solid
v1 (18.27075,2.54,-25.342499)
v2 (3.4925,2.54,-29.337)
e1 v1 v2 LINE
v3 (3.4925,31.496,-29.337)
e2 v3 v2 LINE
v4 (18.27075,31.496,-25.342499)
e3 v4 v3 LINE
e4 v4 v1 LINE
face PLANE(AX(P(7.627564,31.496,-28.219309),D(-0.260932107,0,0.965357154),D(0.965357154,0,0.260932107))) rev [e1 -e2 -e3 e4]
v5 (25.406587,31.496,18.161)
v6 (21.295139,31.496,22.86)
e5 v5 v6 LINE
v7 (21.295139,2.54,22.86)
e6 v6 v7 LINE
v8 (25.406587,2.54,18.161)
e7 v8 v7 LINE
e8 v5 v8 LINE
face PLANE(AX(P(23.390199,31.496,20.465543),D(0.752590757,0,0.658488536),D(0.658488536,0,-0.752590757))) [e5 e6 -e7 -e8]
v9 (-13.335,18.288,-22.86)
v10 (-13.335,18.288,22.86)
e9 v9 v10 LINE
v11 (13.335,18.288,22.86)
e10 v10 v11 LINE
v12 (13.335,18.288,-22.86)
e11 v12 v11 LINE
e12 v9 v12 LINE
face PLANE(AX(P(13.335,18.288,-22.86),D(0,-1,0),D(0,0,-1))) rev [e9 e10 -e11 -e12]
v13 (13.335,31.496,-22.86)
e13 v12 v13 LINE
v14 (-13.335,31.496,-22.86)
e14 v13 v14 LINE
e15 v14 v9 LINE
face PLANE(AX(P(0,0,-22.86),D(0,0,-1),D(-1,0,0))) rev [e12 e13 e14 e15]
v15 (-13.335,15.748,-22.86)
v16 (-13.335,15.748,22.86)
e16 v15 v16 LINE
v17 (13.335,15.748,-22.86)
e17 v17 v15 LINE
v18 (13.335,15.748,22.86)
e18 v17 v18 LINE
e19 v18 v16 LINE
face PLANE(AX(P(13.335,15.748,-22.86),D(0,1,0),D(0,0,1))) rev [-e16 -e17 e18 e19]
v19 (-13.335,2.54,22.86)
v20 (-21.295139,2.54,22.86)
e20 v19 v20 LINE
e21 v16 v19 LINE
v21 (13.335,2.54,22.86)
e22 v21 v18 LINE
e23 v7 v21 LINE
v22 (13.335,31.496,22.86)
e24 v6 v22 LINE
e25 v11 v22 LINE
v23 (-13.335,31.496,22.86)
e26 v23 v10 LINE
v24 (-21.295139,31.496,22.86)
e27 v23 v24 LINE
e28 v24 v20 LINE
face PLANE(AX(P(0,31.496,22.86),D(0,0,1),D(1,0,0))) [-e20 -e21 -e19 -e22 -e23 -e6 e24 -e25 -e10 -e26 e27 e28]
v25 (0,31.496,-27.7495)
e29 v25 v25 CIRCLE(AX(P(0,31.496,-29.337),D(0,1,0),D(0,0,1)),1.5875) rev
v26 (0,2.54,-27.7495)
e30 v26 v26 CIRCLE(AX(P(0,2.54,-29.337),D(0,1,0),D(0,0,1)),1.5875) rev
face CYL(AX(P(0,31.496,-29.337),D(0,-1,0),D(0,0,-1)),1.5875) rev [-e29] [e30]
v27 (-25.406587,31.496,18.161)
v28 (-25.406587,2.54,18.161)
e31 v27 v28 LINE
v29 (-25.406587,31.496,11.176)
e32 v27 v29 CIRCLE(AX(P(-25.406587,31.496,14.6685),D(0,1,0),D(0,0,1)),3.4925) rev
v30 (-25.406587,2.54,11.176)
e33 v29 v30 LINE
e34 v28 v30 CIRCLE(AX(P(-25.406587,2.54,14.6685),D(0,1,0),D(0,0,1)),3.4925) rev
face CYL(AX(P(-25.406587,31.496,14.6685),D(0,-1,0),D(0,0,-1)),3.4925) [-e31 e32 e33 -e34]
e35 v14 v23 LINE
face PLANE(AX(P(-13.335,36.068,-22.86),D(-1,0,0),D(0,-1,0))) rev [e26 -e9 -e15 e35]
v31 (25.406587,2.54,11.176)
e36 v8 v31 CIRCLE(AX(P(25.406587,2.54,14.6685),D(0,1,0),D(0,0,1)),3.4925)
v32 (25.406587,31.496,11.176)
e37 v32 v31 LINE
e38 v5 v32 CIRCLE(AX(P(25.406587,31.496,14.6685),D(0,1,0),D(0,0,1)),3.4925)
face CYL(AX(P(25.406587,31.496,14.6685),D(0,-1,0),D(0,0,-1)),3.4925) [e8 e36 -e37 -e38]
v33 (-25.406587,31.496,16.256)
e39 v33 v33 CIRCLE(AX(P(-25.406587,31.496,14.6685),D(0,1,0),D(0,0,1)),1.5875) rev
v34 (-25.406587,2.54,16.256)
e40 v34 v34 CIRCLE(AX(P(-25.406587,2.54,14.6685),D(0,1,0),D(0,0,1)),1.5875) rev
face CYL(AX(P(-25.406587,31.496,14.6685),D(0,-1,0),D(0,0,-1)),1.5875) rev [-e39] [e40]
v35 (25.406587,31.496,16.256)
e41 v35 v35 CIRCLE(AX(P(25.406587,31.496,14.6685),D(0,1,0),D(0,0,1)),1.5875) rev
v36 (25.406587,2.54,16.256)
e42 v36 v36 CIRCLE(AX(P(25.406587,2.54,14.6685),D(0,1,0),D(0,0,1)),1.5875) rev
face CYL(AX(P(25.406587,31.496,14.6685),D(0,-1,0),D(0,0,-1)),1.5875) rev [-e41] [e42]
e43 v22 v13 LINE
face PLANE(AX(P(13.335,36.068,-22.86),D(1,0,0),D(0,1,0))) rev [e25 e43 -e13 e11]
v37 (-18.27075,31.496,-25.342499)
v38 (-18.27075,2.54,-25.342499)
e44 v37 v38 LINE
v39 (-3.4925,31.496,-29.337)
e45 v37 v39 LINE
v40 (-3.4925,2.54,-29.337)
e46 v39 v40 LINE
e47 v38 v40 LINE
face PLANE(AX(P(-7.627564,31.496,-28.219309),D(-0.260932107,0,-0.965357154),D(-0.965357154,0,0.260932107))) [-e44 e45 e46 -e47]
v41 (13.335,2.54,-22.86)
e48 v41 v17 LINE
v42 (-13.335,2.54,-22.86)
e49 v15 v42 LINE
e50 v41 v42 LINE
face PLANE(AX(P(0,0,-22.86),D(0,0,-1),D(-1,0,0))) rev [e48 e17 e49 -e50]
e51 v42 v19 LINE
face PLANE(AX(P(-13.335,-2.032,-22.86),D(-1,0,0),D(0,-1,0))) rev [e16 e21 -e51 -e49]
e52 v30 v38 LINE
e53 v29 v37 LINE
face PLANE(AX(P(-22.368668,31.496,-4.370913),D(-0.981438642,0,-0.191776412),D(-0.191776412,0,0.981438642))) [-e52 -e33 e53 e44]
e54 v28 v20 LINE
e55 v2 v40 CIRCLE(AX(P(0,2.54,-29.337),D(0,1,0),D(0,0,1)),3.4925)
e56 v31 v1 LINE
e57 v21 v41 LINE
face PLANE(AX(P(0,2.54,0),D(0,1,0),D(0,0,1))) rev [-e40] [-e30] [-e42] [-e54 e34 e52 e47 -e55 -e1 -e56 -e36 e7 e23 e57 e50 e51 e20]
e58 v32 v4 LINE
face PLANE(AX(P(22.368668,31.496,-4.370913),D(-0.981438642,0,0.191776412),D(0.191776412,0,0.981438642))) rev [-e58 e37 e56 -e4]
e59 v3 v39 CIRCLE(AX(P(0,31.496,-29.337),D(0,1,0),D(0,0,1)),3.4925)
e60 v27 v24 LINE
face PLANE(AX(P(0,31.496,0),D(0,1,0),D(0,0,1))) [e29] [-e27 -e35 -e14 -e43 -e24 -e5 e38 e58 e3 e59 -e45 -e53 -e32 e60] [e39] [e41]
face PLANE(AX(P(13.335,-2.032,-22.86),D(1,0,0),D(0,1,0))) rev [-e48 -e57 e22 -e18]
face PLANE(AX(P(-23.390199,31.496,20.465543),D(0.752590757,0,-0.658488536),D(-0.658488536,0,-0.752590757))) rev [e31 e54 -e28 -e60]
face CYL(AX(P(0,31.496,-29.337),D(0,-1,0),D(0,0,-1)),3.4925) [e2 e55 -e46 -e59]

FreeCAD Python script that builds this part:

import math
import FreeCAD as App
import Part
import Sketcher
Q = App.Units.Quantity

doc = App.newDocument("Part")
body = doc.addObject("PartDesign::Body", "Body")

sketch1 = body.newObject("Sketcher::SketchObject", "Sketch")
sketch1.AttachmentSupport = (doc.getObject("XZ_Plane"), [""])
sketch1.MapMode = "FlatFace"
sketch1.addGeometry([
    Part.Circle(App.Vector(0, 0, 0), App.Vector(0, 0, 1), 38.1),
    Part.Circle(App.Vector(0, -29.3, 0), App.Vector(0, 0, 1), 1.6),
    Part.Circle(App.Vector(-25.4, 14.7, 0), App.Vector(0, 0, 1), 1.6),
    Part.Circle(App.Vector(25.4, 14.7, 0), App.Vector(0, 0, 1), 1.6),
], False)
sketch1.addConstraint([
    Sketcher.Constraint("Coincident", 0, 3, -1, 1),
    Sketcher.Constraint("Equal", 1, 2),
    Sketcher.Constraint("Equal", 2, 3),
    Sketcher.Constraint("Symmetric", 2, 3, 3, 3, -2),
    Sketcher.Constraint("PointOnObject", 1, 3, -2),
    Sketcher.Constraint("Diameter", 0, Q("3 in")),
    Sketcher.Constraint("Diameter", 1, Q("0.125 in")),
    Sketcher.Constraint("DistanceY", 1, 3, -1, 1, Q("1.155 in")),
    Sketcher.Constraint("DistanceY", -1, 1, 2, 3, Q("0.5775 in")),
    Sketcher.Constraint("DistanceX", 2, 3, -1, 1, 25.406587),
])
pad1 = body.newObject("PartDesign::Pad", "Pad")
pad1.Profile = sketch1
pad1.Length = Q("0.1 in")
pad1.Reversed = True
body2 = doc.addObject("PartDesign::Body", "Body001")

sketch2 = body2.newObject("Sketcher::SketchObject", "Sketch001")
sketch2.AttachmentSupport = (doc.getObject("XZ_Plane001"), [""])
sketch2.MapMode = "FlatFace"
sketch2.AttachmentOffset = App.Placement(App.Vector(0, 0, -0.1 * 25.4), App.Rotation())
sketch2.addGeometry([
    Part.LineSegment(App.Vector(25.4, 11.2, 0), App.Vector(18.3, -25.3, 0)),
    Part.LineSegment(App.Vector(18.3, -25.3, 0), App.Vector(3.5, -29.3, 0)),
    Part.ArcOfCircle(Part.Circle(App.Vector(0, -29.3, 0), App.Vector(0, 0, 1), 3.5), math.radians(180), math.radians(360)),
    Part.LineSegment(App.Vector(-3.5, -29.3, 0), App.Vector(-18.3, -25.3, 0)),
    Part.LineSegment(App.Vector(-18.3, -25.3, 0), App.Vector(-25.4, 11.2, 0)),
    Part.ArcOfCircle(Part.Circle(App.Vector(-25.4, 14.7, 0), App.Vector(0, 0, 1), 3.5), math.radians(90), math.radians(270)),
    Part.LineSegment(App.Vector(-25.4, 18.2, 0), App.Vector(-21.3, 22.9, 0)),
    Part.LineSegment(App.Vector(-21.3, 22.9, 0), App.Vector(21.3, 22.9, 0)),
    Part.LineSegment(App.Vector(21.3, 22.9, 0), App.Vector(25.4, 18.2, 0)),
    Part.ArcOfCircle(Part.Circle(App.Vector(25.4, 14.7, 0), App.Vector(0, 0, 1), 3.5), math.radians(-90), math.radians(90)),
    Part.Circle(App.Vector(-25.4, 14.7, 0), App.Vector(0, 0, 1), 1.6),
    Part.Circle(App.Vector(25.4, 14.7, 0), App.Vector(0, 0, 1), 1.6),
    Part.Circle(App.Vector(0, -29.3, 0), App.Vector(0, 0, 1), 1.6),
], False)
sketch2.addConstraint([
    Sketcher.Constraint("Coincident", 0, 2, 1, 1),
    Sketcher.Constraint("Coincident", 1, 2, 2, 2),
    Sketcher.Constraint("Coincident", 2, 1, 3, 1),
    Sketcher.Constraint("Coincident", 3, 2, 4, 1),
    Sketcher.Constraint("Coincident", 4, 2, 5, 2),
    Sketcher.Constraint("Coincident", 5, 1, 6, 1),
    Sketcher.Constraint("Coincident", 6, 2, 7, 1),
    Sketcher.Constraint("Coincident", 7, 2, 8, 1),
    Sketcher.Constraint("Coincident", 8, 2, 9, 2),
    Sketcher.Constraint("Coincident", 9, 1, 0, 1),
    Sketcher.Constraint("Horizontal", 7),
    Sketcher.Constraint("Coincident", 10, 3, 5, 3),
    Sketcher.Constraint("Coincident", 11, 3, 9, 3),
    Sketcher.Constraint("Coincident", 12, 3, 2, 3),
    Sketcher.Constraint("Equal", 2, 5),
    Sketcher.Constraint("Equal", 5, 9),
    Sketcher.Constraint("Equal", 10, 11),
    Sketcher.Constraint("Equal", 11, 12),
    Sketcher.Constraint("Symmetric", 5, 3, 9, 3, -2),
    Sketcher.Constraint("Symmetric", 1, 2, 2, 1, -2),
    Sketcher.Constraint("Symmetric", 0, 2, 3, 2, -2),
    Sketcher.Constraint("Horizontal", 12, 3, 1, 2),
    Sketcher.Constraint("Vertical", 10, 3, 4, 2),
    Sketcher.Constraint("Vertical", 4, 2, 5, 1),
    Sketcher.Constraint("Vertical", 11, 3, 8, 2),
    Sketcher.Constraint("Vertical", 8, 2, 9, 1),
    Sketcher.Constraint("Equal", 6, 8),
    Sketcher.Constraint("Diameter", 10, Q("0.125 in")),
    Sketcher.Constraint("DistanceY", -1, 1, 6, 2, Q("0.9 in")),
    Sketcher.Constraint("Radius", 2, Q("0.1375 in")),
    Sketcher.Constraint("DistanceY", -1, 1, 4, 2, Q("0.44 in")),
    Sketcher.Constraint("DistanceY", 2, 3, -1, 1, Q("1.155 in")),
    Sketcher.Constraint("Distance", 1, Q("0.6027001 in")),
    Sketcher.Constraint("DistanceX", 7, 1, 7, 2, 42.590279),
    Sketcher.Constraint("DistanceY", 0, 2, -1, 1, 25.342499),
    Sketcher.Constraint("Distance", 0, 37.209152),
])
pad2 = body2.newObject("PartDesign::Pad", "Pad001")
pad2.Profile = sketch2
pad2.Length = Q("1.14 in")
pad2.Reversed = True

sketch3 = body2.newObject("Sketcher::SketchObject", "Sketch002")
sketch3.AttachmentSupport = (doc.getObject("XY_Plane001"), [""])
sketch3.MapMode = "FlatFace"
sketch3.AttachmentOffset = App.Placement(App.Vector(0, 0, 0.9 * 25.4), App.Rotation())
sketch3.addGeometry([
    Part.LineSegment(App.Vector(-13, 36, 0), App.Vector(-13, 18, 0)),
    Part.LineSegment(App.Vector(-13, 18, 0), App.Vector(13, 18, 0)),
    Part.LineSegment(App.Vector(13, 18, 0), App.Vector(13, 36, 0)),
    Part.LineSegment(App.Vector(13, 36, 0), App.Vector(-13, 36, 0)),
    Part.LineSegment(App.Vector(-13, 16, 0), App.Vector(-13, -2, 0)),
    Part.LineSegment(App.Vector(-13, -2, 0), App.Vector(13, -2, 0)),
    Part.LineSegment(App.Vector(13, -2, 0), App.Vector(13, 16, 0)),
    Part.LineSegment(App.Vector(13, 16, 0), App.Vector(-13, 16, 0)),
], False)
sketch3.addConstraint([
    Sketcher.Constraint("Coincident", 0, 2, 1, 1),
    Sketcher.Constraint("Coincident", 1, 2, 2, 1),
    Sketcher.Constraint("Coincident", 2, 2, 3, 1),
    Sketcher.Constraint("Coincident", 3, 2, 0, 1),
    Sketcher.Constraint("Coincident", 4, 2, 5, 1),
    Sketcher.Constraint("Coincident", 5, 2, 6, 1),
    Sketcher.Constraint("Coincident", 6, 2, 7, 1),
    Sketcher.Constraint("Coincident", 7, 2, 4, 1),
    Sketcher.Constraint("Vertical", 0),
    Sketcher.Constraint("Horizontal", 1),
    Sketcher.Constraint("Vertical", 2),
    Sketcher.Constraint("Horizontal", 3),
    Sketcher.Constraint("Vertical", 4),
    Sketcher.Constraint("Horizontal", 5),
    Sketcher.Constraint("Vertical", 6),
    Sketcher.Constraint("Horizontal", 7),
    Sketcher.Constraint("Vertical", 3, 2, 4, 2),
    Sketcher.Constraint("Vertical", 2, 2, 5, 2),
    Sketcher.Constraint("Equal", 2, 4),
    Sketcher.Constraint("DistanceY", 0, 2, 0, 1, Q("0.7 in")),
    Sketcher.Constraint("DistanceX", 1, 1, 1, 2, Q("1.05 in")),
    Sketcher.Constraint("DistanceY", 4, 2, 0, 2, Q("0.8 in")),
    Sketcher.Constraint("DistanceY", -1, 1, 0, 2, Q("0.72 in")),
    Sketcher.Constraint("DistanceX", 0, 2, -1, 1, Q("0.525 in")),
])
pocket1 = body2.newObject("PartDesign::Pocket", "Pocket")
pocket1.Profile = sketch3
pocket1.Length = Q("1.8 in")
body.Visibility = False

doc.recompute()
